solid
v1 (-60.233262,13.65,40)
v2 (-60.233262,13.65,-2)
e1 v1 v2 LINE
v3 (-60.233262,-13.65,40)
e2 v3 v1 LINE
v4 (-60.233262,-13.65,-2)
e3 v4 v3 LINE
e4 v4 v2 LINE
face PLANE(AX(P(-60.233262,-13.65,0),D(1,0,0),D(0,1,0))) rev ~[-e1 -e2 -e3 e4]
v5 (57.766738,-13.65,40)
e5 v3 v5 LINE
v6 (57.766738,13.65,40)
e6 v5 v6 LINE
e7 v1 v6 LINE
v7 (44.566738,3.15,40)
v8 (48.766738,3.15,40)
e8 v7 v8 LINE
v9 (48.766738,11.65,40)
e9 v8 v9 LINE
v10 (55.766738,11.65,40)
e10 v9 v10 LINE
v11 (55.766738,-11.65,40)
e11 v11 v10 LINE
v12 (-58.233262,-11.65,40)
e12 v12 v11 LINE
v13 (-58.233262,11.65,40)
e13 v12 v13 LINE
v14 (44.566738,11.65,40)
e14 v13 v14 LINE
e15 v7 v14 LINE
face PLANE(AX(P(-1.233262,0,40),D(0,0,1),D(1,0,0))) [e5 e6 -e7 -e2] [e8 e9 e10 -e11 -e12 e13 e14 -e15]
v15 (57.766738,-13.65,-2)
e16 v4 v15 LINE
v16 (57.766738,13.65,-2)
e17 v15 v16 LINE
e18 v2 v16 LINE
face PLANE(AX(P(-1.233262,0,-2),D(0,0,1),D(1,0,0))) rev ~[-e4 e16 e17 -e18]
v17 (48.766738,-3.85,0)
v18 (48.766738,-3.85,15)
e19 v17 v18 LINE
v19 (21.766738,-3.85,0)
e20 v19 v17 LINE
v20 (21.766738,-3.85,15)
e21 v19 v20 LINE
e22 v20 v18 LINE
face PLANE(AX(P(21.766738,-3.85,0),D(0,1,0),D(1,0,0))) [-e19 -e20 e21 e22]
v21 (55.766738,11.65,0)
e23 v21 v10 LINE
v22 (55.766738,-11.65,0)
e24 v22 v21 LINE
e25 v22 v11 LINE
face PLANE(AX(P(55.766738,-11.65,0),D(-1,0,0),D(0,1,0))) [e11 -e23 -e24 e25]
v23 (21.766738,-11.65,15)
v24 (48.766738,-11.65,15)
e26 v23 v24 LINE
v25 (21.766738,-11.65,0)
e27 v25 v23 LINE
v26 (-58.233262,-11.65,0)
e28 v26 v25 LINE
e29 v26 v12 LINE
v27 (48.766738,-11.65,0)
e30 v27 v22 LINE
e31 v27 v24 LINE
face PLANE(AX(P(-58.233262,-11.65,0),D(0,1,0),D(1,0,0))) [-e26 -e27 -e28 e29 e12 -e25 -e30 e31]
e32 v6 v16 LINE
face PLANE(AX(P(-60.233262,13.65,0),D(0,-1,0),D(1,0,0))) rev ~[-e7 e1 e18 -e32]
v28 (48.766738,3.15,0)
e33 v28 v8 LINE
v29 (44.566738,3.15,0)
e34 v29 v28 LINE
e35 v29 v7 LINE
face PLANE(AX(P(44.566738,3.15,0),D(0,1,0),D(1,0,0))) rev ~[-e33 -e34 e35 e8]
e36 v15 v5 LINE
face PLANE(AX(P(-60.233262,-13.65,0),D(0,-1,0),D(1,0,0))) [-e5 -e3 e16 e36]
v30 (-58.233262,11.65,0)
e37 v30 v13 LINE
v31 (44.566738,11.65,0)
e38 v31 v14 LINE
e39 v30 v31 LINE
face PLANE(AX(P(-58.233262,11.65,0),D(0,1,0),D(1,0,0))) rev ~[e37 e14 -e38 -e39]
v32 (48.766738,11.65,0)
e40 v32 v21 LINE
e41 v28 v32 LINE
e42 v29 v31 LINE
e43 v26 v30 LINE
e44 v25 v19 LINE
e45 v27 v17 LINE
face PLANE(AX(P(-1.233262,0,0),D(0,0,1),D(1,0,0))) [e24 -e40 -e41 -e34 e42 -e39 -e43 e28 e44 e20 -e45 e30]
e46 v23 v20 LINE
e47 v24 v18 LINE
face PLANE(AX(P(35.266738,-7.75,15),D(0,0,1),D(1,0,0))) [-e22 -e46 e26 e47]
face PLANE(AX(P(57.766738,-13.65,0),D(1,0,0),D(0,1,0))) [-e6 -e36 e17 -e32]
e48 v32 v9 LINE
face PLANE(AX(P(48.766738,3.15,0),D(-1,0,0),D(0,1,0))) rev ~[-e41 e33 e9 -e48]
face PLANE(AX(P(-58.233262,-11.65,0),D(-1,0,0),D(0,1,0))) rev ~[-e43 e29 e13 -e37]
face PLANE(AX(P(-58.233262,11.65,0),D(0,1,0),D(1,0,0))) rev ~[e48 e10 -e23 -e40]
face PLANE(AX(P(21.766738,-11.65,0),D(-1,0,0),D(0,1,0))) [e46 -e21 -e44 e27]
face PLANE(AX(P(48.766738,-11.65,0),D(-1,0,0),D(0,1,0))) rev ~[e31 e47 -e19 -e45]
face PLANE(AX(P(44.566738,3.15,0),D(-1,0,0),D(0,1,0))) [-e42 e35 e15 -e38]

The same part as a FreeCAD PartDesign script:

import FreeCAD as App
import Part
import Sketcher
from FreeCAD import Vector
Q = App.Units.Quantity

doc = App.newDocument("Part")
body = doc.addObject("PartDesign::Body", "Body")

# Sketch on XY plane
sketch1 = doc.addObject("Sketcher::SketchObject", "Sketch")
body.addObject(sketch1)
sketch1.AttachmentSupport = (doc.XY_Plane, [""])
sketch1.MapMode = "FlatFace"
sketch1.addGeometry([
    Part.LineSegment(Vector(-60, 14, 0), Vector(-60, -14, 0)),  # 0
    Part.LineSegment(Vector(-60, -14, 0), Vector(58, -14, 0)),  # 1
    Part.LineSegment(Vector(58, -14, 0), Vector(58, 14, 0)),  # 2
    Part.LineSegment(Vector(58, 14, 0), Vector(-60, 14, 0)),  # 3
    Part.LineSegment(Vector(56, -12, 0), Vector(-58, -12, 0)),  # 4
    Part.LineSegment(Vector(-58, -12, 0), Vector(-58, 12, 0)),  # 5
    Part.LineSegment(Vector(-58, 12, 0), Vector(56, 12, 0)),  # 6
    Part.LineSegment(Vector(56, 12, 0), Vector(56, -12, 0)),  # 7
], False)
sketch1.addConstraint([
    Sketcher.Constraint("Coincident", 0, 2, 1, 1),
    Sketcher.Constraint("Coincident", 1, 2, 2, 1),
    Sketcher.Constraint("Coincident", 2, 2, 3, 1),
    Sketcher.Constraint("Coincident", 3, 2, 0, 1),
    Sketcher.Constraint("Coincident", 4, 2, 5, 1),
    Sketcher.Constraint("Coincident", 5, 2, 6, 1),
    Sketcher.Constraint("Coincident", 6, 2, 7, 1),
    Sketcher.Constraint("Coincident", 7, 2, 4, 1),
    Sketcher.Constraint("Vertical", 0),
    Sketcher.Constraint("Horizontal", 1),
    Sketcher.Constraint("Vertical", 2),
    Sketcher.Constraint("Horizontal", 3),
    Sketcher.Constraint("Horizontal", 4),
    Sketcher.Constraint("Vertical", 5),
    Sketcher.Constraint("Horizontal", 6),
    Sketcher.Constraint("Vertical", 7),
    Sketcher.Constraint("DistanceX", 1, 1, 1, 2, Q("118 mm")),
    Sketcher.Constraint("DistanceX", 4, 2, 4, 1, Q("114 mm")),
    Sketcher.Constraint("DistanceY", 0, 2, 0, 1, Q("27.3 mm")),
    Sketcher.Constraint("DistanceY", 5, 1, 5, 2, Q("23.3 mm")),
    Sketcher.Constraint("DistanceX", 0, 2, 4, 2, Q("2 mm")),
    Sketcher.Constraint("DistanceY", 0, 2, 4, 2, Q("2 mm")),
    Sketcher.Constraint("DistanceY", 0, 2, -1, 1, Q("13.65 mm")),
    Sketcher.Constraint("DistanceX", 0, 2, -1, 1, Q("60.233262 mm")),
])
pad1 = doc.addObject("PartDesign::Pad", "Pad")
body.addObject(pad1)
pad1.Profile = sketch1
pad1.Length = 40

# Sketch on XY plane
sketch2 = doc.addObject("Sketcher::SketchObject", "Sketch001")
body.addObject(sketch2)
sketch2.AttachmentSupport = (doc.XY_Plane, [""])
sketch2.MapMode = "FlatFace"
sketch2.addGeometry([
    Part.LineSegment(Vector(44.6, 11.7, 0), Vector(44.6, 3.1, 0)),
    Part.LineSegment(Vector(44.6, 3.1, 0), Vector(48.8, 3.1, 0)),
    Part.LineSegment(Vector(48.8, 3.1, 0), Vector(48.8, 11.7, 0)),
    Part.LineSegment(Vector(48.8, 11.7, 0), Vector(44.6, 11.7, 0)),
], False)
sketch2.addConstraint([
    Sketcher.Constraint("Coincident", 0, 2, 1, 1),
    Sketcher.Constraint("Coincident", 1, 2, 2, 1),
    Sketcher.Constraint("Coincident", 2, 2, 3, 1),
    Sketcher.Constraint("Coincident", 3, 2, 0, 1),
    Sketcher.Constraint("Vertical", 0),
    Sketcher.Constraint("Horizontal", 1),
    Sketcher.Constraint("Vertical", 2),
    Sketcher.Constraint("Horizontal", 3),
    Sketcher.Constraint("DistanceX", 1, 1, 1, 2, Q("4.2 mm")),
    Sketcher.Constraint("DistanceY", 0, 2, 0, 1, Q("8.5 mm")),
    Sketcher.Constraint("DistanceY", -1, 1, 0, 2, Q("3.15 mm")),
    Sketcher.Constraint("DistanceX", -1, 1, 0, 2, Q("44.566738 mm")),
])
pad2 = doc.addObject("PartDesign::Pad", "Pad001")
body.addObject(pad2)
pad2.Profile = sketch2
pad2.Length = 40

# Sketch on XY plane
sketch3 = doc.addObject("Sketcher::SketchObject", "Sketch002")
body.addObject(sketch3)
sketch3.AttachmentSupport = (doc.XY_Plane, [""])
sketch3.MapMode = "FlatFace"
sketch3.addGeometry([
    Part.LineSegment(Vector(22, -4, 0), Vector(22, -12, 0)),
    Part.LineSegment(Vector(22, -12, 0), Vector(49, -12, 0)),
    Part.LineSegment(Vector(49, -12, 0), Vector(49, -4, 0)),
    Part.LineSegment(Vector(49, -4, 0), Vector(22, -4, 0)),
], False)
sketch3.addConstraint([
    Sketcher.Constraint("Coincident", 0, 2, 1, 1),
    Sketcher.Constraint("Coincident", 1, 2, 2, 1),
    Sketcher.Constraint("Coincident", 2, 2, 3, 1),
    Sketcher.Constraint("Coincident", 3, 2, 0, 1),
    Sketcher.Constraint("Vertical", 0),
    Sketcher.Constraint("Horizontal", 1),
    Sketcher.Constraint("Vertical", 2),
    Sketcher.Constraint("Horizontal", 3),
    Sketcher.Constraint("DistanceX", 1, 1, 1, 2, Q("27 mm")),
    Sketcher.Constraint("DistanceY", 0, 2, 0, 1, Q("7.8 mm")),
    Sketcher.Constraint("DistanceY", 0, 2, -1, 1, Q("11.65 mm")),
    Sketcher.Constraint("DistanceX", -1, 1, 0, 2, Q("21.766738 mm")),
])
pad3 = doc.addObject("PartDesign::Pad", "Pad002")
body.addObject(pad3)
pad3.Profile = sketch3
pad3.Length = 15

# Sketch on XY plane
sketch4 = doc.addObject("Sketcher::SketchObject", "Sketch003")
body.addObject(sketch4)
sketch4.AttachmentSupport = (doc.XY_Plane, [""])
sketch4.MapMode = "FlatFace"
sketch4.addGeometry([
    Part.LineSegment(Vector(-60, 14, 0), Vector(-60, -14, 0)),
    Part.LineSegment(Vector(-60, -14, 0), Vector(58, -14, 0)),
    Part.LineSegment(Vector(58, -14, 0), Vector(58, 14, 0)),
    Part.LineSegment(Vector(58, 14, 0), Vector(-60, 14, 0)),
], False)
sketch4.addConstraint([
    Sketcher.Constraint("Coincident", 0, 2, 1, 1),
    Sketcher.Constraint("Coincident", 1, 2, 2, 1),
    Sketcher.Constraint("Coincident", 2, 2, 3, 1),
    Sketcher.Constraint("Coincident", 3, 2, 0, 1),
    Sketcher.Constraint("Vertical", 0),
    Sketcher.Constraint("Horizontal", 1),
    Sketcher.Constraint("Vertical", 2),
    Sketcher.Constraint("Horizontal", 3),
    Sketcher.Constraint("DistanceX", 1, 1, 1, 2, Q("118 mm")),
    Sketcher.Constraint("DistanceY", 0, 2, 0, 1, Q("27.3 mm")),
    Sketcher.Constraint("DistanceY", 0, 2, -1, 1, Q("13.65 mm")),
    Sketcher.Constraint("DistanceX", 0, 2, -1, 1, Q("60.233262 mm")),
])
pad4 = doc.addObject("PartDesign::Pad", "Pad003")
body.addObject(pad4)
pad4.Profile = sketch4
pad4.Length = 2
pad4.Reversed = True

doc.recompute()
